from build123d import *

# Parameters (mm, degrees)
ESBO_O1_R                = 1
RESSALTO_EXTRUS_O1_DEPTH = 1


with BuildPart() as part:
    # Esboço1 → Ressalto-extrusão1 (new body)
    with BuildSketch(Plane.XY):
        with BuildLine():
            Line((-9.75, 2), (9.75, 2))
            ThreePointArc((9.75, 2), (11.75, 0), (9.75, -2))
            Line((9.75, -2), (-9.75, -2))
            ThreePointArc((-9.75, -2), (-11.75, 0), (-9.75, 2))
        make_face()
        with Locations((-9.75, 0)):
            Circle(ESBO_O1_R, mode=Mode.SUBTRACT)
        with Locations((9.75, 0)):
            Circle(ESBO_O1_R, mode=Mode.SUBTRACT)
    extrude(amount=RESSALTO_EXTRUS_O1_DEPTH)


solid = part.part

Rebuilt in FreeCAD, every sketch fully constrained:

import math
import FreeCAD as App
import Part
import Sketcher
from FreeCAD import Vector

doc = App.newDocument("Part")
params = doc.addObject("Spreadsheet::Sheet", "Params")
for row, (alias, value) in enumerate([
    ("sketch1_diameter", "2 mm"),
    ("sketch1_radius", "2 mm"),
    ("sketch1_width", "19.5 mm"),
    ("pad1_length", "1 mm"),
], start=1):
    params.set(f"A{row}", alias)
    params.set(f"B{row}", "=" + value)
    params.setAlias(f"B{row}", alias)

body = doc.addObject("PartDesign::Body", "Body")

# Sketch on XY plane
sketch1 = body.newObject("Sketcher::SketchObject", "Sketch")
sketch1.AttachmentSupport = (doc.getObject("XY_Plane"), [""])
sketch1.MapMode = "FlatFace"
sketch1.addGeometry(Part.LineSegment(Vector(9.8, 2, 0), Vector(-9.8, 2, 0)), False)
sketch1.addGeometry(Part.ArcOfCircle(Part.Circle(Vector(-9.8, 0, 0), Vector(0, 0, 1), 2), math.radians(90), math.radians(270)), False)
sketch1.addGeometry(Part.LineSegment(Vector(-9.8, -2, 0), Vector(9.8, -2, 0)), False)
sketch1.addGeometry(Part.ArcOfCircle(Part.Circle(Vector(9.8, 0, 0), Vector(0, 0, 1), 2), math.radians(-90), math.radians(90)), False)
sketch1.addGeometry(Part.Circle(Vector(9.8, 0, 0), Vector(0, 0, 1), 1), False)
sketch1.addGeometry(Part.Circle(Vector(-9.8, 0, 0), Vector(0, 0, 1), 1), False)
sketch1.addConstraint(Sketcher.Constraint("Tangent", 0, 2, 1, 1))
sketch1.addConstraint(Sketcher.Constraint("Tangent", 1, 2, 2, 1))
sketch1.addConstraint(Sketcher.Constraint("Tangent", 2, 2, 3, 1))
sketch1.addConstraint(Sketcher.Constraint("Tangent", 3, 2, 0, 1))
sketch1.addConstraint(Sketcher.Constraint("Horizontal", 0))
sketch1.addConstraint(Sketcher.Constraint("Horizontal", 2))
sketch1.addConstraint(Sketcher.Constraint("Coincident", 4, 3, 3, 3))
sketch1.addConstraint(Sketcher.Constraint("Coincident", 5, 3, 1, 3))
sketch1.addConstraint(Sketcher.Constraint("Equal", 4, 5))
sketch1.addConstraint(Sketcher.Constraint("Symmetric", 1, 3, 3, 3, -1, 1))
sketch1.addConstraint(Sketcher.Constraint("Diameter", 4, 2.0))
sketch1.addConstraint(Sketcher.Constraint("Radius", 1, 2.0))
sketch1.addConstraint(Sketcher.Constraint("DistanceX", 0, 2, 0, 1, 19.5))
sketch1.setExpression("Constraints[10]", "Params.sketch1_diameter")
sketch1.setExpression("Constraints[11]", "Params.sketch1_radius")
sketch1.setExpression("Constraints[12]", "Params.sketch1_width")
pad1 = body.newObject("PartDesign::Pad", "Pad")
pad1.Profile = sketch1
pad1.setExpression("Length", "Params.pad1_length")

doc.recompute()
